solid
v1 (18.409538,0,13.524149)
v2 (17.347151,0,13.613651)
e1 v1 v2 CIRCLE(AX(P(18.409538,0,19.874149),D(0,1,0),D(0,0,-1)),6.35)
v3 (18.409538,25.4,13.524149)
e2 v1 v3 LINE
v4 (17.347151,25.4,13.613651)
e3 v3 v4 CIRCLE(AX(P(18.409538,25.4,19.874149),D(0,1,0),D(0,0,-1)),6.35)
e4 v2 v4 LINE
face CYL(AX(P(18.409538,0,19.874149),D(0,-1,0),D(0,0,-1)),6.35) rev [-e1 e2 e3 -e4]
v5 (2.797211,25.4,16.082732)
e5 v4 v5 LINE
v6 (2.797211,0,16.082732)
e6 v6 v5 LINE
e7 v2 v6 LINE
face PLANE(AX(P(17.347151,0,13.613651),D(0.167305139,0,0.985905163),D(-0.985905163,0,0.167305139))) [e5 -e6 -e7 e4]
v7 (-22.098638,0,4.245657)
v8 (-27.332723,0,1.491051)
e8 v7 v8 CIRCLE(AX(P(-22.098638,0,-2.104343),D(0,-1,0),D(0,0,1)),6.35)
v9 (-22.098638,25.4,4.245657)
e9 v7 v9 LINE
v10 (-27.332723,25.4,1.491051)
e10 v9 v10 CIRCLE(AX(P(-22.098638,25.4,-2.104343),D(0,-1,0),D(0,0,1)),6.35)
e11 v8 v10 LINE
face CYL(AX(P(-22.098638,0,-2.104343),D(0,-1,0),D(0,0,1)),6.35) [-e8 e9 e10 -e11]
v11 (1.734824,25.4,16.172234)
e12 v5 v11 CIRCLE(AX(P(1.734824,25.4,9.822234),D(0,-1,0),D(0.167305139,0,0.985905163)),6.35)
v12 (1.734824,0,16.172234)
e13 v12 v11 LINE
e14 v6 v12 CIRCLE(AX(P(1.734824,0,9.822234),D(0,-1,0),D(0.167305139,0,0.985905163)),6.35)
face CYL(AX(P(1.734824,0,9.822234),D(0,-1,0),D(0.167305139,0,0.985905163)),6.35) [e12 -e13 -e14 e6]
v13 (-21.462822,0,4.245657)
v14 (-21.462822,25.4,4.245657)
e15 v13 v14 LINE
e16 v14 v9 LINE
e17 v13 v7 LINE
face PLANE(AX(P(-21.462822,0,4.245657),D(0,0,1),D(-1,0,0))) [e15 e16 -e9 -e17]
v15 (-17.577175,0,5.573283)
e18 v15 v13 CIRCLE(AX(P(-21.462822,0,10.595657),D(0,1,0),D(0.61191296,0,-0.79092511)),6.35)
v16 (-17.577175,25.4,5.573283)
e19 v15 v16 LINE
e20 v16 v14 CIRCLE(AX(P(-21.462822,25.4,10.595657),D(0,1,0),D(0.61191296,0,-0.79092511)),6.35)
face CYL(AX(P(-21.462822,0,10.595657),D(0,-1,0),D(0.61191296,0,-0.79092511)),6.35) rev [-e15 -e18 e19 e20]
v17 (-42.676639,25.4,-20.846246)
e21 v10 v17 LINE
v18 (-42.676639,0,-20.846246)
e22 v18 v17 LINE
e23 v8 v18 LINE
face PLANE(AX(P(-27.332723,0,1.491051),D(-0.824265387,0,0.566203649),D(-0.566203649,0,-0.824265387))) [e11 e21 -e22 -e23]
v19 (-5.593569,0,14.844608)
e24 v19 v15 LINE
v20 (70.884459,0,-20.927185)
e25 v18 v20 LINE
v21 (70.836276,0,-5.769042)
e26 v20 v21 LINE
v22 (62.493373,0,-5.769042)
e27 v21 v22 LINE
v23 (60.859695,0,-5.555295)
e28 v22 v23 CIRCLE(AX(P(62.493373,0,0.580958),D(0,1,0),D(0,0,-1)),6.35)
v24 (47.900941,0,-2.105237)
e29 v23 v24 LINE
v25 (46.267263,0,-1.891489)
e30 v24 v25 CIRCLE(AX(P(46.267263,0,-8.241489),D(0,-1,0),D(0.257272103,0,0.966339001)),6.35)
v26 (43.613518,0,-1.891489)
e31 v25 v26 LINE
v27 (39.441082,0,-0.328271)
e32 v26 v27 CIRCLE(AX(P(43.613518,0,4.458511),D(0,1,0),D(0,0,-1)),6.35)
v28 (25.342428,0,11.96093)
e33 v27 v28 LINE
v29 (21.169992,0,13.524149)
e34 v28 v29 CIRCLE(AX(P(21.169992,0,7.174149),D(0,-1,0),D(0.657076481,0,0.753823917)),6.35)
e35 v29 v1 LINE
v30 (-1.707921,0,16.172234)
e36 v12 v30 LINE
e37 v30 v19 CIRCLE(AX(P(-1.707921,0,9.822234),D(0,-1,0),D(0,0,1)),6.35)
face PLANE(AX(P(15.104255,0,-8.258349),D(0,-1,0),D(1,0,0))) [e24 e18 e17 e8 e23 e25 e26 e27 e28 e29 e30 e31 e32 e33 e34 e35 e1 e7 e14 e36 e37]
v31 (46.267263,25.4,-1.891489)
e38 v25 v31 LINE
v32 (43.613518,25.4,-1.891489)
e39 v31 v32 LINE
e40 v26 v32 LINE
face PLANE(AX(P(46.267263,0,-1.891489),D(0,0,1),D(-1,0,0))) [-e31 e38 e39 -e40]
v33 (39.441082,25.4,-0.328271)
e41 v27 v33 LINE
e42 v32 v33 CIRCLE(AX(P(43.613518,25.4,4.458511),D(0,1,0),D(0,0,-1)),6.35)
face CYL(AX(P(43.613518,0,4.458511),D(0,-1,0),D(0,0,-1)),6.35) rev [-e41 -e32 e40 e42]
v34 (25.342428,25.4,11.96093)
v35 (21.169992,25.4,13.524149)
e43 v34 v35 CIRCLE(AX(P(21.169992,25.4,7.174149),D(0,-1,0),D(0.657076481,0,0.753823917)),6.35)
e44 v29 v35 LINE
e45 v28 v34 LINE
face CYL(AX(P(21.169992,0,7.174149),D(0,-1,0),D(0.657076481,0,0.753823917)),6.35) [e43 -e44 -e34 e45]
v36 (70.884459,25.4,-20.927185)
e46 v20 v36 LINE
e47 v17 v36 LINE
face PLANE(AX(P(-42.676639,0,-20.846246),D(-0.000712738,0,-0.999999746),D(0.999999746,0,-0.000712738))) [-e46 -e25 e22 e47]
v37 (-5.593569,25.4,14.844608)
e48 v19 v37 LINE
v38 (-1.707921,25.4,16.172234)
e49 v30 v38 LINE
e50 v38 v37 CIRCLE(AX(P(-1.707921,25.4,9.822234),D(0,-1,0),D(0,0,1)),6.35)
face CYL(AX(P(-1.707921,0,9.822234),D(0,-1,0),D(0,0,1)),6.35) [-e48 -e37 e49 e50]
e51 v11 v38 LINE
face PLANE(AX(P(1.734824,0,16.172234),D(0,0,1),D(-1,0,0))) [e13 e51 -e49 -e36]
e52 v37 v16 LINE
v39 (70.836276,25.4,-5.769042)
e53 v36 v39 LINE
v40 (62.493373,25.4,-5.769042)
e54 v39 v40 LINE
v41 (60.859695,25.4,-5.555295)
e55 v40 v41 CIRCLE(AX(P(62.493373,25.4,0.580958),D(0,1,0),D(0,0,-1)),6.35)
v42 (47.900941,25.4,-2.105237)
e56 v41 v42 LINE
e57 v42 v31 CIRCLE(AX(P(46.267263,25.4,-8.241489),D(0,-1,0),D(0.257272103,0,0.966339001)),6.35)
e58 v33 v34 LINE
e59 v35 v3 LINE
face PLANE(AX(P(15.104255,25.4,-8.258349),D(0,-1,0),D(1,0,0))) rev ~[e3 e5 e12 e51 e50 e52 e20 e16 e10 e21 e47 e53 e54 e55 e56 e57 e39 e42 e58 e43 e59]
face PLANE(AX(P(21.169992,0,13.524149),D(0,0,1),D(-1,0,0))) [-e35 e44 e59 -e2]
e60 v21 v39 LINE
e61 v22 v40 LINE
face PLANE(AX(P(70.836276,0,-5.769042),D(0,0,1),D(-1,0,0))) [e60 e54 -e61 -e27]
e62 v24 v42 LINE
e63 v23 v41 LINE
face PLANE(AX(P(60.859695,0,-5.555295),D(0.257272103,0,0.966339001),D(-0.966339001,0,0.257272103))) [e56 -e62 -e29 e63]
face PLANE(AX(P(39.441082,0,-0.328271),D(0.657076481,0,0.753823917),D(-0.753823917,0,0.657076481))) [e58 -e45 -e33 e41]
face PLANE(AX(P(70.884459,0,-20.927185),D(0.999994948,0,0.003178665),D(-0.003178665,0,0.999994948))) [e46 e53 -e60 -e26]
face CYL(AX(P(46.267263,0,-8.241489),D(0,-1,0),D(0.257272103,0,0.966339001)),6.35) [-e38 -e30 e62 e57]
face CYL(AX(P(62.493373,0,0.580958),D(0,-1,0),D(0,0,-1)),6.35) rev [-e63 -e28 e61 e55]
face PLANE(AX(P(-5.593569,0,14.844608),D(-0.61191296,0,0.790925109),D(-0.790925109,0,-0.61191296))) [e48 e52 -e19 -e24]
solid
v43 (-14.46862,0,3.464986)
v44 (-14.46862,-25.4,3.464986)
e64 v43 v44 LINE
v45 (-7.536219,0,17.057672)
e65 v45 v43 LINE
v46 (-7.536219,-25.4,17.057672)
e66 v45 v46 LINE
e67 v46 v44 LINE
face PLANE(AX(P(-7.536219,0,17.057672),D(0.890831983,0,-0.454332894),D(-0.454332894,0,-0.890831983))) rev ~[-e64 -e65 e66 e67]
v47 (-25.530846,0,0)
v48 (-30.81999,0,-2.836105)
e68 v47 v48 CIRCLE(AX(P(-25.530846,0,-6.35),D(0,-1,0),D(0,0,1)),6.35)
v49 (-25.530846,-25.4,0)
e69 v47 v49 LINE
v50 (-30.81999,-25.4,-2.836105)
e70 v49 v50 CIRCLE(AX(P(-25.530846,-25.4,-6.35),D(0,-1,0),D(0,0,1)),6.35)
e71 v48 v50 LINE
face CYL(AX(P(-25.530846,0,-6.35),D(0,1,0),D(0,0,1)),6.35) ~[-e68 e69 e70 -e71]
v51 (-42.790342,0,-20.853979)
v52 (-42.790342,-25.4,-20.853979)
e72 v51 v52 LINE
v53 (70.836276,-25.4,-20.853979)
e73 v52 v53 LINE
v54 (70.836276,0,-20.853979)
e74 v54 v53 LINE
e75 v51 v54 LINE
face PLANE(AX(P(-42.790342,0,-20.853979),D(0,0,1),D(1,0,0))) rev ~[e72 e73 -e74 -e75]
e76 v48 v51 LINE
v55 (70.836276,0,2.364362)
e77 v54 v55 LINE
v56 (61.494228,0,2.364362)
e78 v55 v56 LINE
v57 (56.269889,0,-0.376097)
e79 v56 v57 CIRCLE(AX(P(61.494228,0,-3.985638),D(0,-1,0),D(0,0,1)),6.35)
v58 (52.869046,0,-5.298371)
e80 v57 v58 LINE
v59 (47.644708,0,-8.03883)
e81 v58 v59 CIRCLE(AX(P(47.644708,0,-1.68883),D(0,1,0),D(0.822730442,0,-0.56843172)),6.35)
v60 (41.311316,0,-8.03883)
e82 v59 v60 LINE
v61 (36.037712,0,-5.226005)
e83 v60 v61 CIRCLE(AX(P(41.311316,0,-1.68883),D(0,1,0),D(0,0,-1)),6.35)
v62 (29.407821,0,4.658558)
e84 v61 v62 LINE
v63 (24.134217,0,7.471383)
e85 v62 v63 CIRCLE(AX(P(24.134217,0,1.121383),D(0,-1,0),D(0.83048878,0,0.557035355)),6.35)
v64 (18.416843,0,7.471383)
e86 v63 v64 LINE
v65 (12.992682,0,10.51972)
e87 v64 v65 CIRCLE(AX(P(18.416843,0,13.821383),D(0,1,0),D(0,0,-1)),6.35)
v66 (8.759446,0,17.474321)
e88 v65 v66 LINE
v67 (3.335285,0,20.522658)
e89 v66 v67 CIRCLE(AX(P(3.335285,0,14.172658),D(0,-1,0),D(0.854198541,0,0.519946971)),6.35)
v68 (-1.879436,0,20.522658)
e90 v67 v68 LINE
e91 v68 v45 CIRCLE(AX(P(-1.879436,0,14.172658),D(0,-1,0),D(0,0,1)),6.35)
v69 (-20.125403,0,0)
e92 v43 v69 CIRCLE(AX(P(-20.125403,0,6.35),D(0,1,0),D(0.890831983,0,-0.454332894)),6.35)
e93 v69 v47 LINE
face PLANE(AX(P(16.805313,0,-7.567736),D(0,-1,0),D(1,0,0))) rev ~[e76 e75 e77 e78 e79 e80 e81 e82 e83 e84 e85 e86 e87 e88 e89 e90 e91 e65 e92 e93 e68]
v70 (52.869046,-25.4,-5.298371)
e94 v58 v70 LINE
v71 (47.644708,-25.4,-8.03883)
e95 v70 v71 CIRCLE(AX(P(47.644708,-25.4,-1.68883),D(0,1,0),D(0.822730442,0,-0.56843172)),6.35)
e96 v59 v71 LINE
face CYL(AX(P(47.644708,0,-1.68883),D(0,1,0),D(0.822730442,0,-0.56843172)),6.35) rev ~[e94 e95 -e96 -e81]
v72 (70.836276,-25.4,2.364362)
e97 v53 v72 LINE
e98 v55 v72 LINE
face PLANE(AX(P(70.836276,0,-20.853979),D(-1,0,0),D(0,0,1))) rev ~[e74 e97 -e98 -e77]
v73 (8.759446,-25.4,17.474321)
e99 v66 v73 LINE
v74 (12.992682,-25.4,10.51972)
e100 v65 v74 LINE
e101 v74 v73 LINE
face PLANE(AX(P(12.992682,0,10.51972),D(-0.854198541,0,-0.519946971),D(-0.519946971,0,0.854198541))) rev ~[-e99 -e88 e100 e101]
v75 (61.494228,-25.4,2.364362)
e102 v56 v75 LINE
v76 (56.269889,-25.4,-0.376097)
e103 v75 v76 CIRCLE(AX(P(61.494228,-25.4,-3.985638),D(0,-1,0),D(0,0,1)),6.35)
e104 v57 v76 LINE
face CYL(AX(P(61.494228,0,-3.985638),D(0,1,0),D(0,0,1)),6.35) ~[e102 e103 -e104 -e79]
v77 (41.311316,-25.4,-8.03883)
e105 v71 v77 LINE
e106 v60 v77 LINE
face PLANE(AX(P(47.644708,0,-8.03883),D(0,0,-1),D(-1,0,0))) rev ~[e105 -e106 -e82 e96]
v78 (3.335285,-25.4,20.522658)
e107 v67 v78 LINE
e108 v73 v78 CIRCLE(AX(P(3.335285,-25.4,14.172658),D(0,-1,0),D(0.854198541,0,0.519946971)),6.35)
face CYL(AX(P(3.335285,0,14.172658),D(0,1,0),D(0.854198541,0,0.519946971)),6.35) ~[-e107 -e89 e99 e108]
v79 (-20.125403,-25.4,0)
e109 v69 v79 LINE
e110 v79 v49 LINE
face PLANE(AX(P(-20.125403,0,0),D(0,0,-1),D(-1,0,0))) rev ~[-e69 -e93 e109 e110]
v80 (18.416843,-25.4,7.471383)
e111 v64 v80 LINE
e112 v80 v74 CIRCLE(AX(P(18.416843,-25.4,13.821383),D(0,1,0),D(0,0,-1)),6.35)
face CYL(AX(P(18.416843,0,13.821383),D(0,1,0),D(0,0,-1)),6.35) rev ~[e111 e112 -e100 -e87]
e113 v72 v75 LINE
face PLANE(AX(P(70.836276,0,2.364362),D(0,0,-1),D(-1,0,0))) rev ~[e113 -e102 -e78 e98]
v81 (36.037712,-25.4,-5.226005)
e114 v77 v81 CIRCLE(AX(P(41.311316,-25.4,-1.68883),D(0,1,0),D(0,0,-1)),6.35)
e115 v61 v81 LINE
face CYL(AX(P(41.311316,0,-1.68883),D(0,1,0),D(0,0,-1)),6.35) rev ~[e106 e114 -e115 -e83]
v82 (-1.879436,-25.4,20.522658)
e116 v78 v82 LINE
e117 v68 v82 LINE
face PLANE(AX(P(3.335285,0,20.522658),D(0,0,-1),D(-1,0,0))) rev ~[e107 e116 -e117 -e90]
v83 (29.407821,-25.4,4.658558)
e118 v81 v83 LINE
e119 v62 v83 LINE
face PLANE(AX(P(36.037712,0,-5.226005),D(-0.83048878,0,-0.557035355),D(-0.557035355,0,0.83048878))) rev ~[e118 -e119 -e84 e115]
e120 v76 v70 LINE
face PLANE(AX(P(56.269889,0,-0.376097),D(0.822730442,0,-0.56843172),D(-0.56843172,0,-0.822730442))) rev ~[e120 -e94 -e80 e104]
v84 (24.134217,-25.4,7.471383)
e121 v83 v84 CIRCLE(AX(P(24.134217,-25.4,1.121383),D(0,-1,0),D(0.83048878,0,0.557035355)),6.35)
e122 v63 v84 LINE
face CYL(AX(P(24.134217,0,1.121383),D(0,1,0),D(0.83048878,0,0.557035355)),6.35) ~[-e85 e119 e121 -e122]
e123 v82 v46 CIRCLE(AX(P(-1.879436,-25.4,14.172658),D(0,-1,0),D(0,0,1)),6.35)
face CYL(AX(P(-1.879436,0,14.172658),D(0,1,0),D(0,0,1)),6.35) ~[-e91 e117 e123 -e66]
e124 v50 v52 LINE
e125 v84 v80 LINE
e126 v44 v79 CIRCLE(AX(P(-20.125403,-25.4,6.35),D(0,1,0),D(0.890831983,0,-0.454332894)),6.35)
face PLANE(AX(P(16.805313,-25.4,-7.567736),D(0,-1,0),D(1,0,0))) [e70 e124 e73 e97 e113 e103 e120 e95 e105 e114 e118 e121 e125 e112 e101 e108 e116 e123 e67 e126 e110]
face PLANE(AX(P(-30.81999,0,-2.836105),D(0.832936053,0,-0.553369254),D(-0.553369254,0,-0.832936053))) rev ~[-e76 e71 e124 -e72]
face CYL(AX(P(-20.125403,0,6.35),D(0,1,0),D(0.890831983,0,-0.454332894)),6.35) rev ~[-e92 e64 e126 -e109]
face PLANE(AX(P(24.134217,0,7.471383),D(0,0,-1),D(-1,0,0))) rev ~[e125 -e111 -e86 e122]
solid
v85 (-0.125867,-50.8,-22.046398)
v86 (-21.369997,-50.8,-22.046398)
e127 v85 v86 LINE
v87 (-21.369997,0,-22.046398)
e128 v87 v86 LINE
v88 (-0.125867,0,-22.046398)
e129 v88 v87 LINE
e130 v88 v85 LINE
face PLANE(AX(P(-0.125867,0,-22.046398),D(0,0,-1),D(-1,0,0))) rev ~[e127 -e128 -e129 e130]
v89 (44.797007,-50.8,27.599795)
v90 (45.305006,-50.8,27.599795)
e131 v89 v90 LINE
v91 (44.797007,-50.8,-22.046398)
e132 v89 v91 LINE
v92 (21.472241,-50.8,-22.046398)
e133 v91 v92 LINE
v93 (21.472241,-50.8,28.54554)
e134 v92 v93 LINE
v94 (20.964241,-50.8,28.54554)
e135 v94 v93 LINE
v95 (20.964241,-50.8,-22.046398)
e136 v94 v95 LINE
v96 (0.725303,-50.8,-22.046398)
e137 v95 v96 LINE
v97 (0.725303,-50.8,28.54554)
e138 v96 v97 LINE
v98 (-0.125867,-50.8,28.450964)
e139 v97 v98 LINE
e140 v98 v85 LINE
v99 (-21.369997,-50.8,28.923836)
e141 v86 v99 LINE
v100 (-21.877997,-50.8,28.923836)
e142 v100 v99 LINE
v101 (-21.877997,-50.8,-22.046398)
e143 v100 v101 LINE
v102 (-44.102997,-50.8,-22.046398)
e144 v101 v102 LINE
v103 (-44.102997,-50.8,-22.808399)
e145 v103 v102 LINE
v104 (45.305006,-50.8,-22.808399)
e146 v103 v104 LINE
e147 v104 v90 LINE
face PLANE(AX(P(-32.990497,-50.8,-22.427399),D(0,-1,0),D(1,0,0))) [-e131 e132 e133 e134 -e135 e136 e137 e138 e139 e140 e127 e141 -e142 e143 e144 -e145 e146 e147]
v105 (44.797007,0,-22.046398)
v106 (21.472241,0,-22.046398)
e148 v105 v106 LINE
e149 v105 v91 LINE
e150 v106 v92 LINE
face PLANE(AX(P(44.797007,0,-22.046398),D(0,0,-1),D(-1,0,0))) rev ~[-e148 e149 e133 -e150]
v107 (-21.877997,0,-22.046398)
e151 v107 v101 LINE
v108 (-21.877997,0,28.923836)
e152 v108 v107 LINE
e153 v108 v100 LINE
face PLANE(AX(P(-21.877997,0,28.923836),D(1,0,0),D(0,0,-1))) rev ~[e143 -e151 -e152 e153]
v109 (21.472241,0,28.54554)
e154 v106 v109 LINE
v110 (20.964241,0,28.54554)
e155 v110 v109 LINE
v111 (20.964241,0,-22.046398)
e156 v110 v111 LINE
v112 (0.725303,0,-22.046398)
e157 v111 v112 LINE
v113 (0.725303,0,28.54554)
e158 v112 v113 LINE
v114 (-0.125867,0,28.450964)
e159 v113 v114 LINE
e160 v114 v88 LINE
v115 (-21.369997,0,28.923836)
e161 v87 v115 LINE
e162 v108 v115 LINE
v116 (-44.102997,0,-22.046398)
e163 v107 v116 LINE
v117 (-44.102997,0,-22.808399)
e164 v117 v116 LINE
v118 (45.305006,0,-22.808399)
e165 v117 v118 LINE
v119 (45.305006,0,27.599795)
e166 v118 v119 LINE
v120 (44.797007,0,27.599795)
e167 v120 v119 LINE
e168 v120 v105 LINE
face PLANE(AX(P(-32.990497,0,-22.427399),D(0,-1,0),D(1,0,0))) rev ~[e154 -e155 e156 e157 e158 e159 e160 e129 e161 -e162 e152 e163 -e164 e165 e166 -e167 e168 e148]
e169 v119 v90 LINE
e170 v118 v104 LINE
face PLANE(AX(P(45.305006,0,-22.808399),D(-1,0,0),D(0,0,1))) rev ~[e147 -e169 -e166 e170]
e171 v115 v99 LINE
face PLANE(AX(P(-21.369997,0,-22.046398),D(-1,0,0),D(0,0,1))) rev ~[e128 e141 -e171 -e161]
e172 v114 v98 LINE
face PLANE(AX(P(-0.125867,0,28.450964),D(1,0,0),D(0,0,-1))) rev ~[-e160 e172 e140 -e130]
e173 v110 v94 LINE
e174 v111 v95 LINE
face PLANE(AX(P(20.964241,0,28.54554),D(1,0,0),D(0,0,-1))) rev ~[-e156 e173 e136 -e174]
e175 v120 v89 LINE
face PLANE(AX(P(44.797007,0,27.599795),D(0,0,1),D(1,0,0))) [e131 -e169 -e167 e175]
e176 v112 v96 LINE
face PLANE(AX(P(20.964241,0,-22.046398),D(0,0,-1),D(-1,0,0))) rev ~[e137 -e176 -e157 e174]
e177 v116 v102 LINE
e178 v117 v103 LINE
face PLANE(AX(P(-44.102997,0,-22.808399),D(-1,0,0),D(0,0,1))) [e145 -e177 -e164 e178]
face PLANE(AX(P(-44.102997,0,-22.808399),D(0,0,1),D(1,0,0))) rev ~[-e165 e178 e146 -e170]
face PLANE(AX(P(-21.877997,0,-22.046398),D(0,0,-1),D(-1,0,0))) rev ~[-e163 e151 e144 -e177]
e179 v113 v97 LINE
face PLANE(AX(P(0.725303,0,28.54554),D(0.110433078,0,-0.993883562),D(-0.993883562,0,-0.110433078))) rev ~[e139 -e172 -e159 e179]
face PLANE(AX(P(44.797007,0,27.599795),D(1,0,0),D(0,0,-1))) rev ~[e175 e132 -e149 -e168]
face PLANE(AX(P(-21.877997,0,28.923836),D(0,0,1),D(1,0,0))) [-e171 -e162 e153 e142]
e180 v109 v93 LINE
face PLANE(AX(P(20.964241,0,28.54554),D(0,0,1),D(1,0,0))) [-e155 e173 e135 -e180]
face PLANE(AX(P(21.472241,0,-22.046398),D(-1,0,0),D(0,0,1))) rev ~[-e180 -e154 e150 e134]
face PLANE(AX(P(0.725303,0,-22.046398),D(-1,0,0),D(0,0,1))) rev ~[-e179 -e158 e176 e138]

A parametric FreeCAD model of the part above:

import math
import FreeCAD as App
import Part
import Sketcher
Q = App.Units.Quantity

doc = App.newDocument("Part")
params = doc.addObject("Spreadsheet::Sheet", "Params")
for row, (alias, value) in enumerate([
    ("sketch1_radius", "0.25 in"),
    ("pad1_length", "1 in"),
    ("sketch2_radius", "0.25 in"),
    ("pad2_length", "1 in"),
    ("sketch3_width", "3.5200001 in"),
    ("sketch3_width2", "0.02 in"),
    ("sketch3_height", "0.03 in"),
    ("sketch3_width3", "0.875 in"),
    ("pad3_length", "2 in"),
], start=1):
    params.set(f"A{row}", alias)
    params.set(f"B{row}", "=" + value)
    params.setAlias(f"B{row}", alias)

body = doc.addObject("PartDesign::Body", "Body")

# Sketch on XZ plane
sketch1 = body.newObject("Sketcher::SketchObject", "Sketch")
sketch1.AttachmentSupport = (doc.getObject("XZ_Plane"), [""])
sketch1.MapMode = "FlatFace"
sketch1.addGeometry(Part.LineSegment(App.Vector(-31, -3, 0), App.Vector(-43, -21, 0)), False)
sketch1.addGeometry(Part.LineSegment(App.Vector(-43, -21, 0), App.Vector(71, -21, 0)), False)
sketch1.addGeometry(Part.LineSegment(App.Vector(71, -21, 0), App.Vector(71, 2, 0)), False)
sketch1.addGeometry(Part.LineSegment(App.Vector(71, 2, 0), App.Vector(61, 2, 0)), False)
sketch1.addGeometry(Part.ArcOfCircle(Part.Circle(App.Vector(61, -4, 0), App.Vector(0, 0, 1), 6), math.radians(90), math.radians(145)), False)
sketch1.addGeometry(Part.LineSegment(App.Vector(56, 0, 0), App.Vector(53, -5, 0)), False)
sketch1.addGeometry(Part.ArcOfCircle(Part.Circle(App.Vector(48, -2, 0), App.Vector(0, 0, 1), 6), math.radians(-90), math.radians(-35)), False)
sketch1.addGeometry(Part.LineSegment(App.Vector(48, -8, 0), App.Vector(41, -8, 0)), False)
sketch1.addGeometry(Part.ArcOfCircle(Part.Circle(App.Vector(41, -2, 0), App.Vector(0, 0, 1), 6), math.radians(-146), math.radians(-90)), False)
sketch1.addGeometry(Part.LineSegment(App.Vector(36, -5, 0), App.Vector(29, 5, 0)), False)
sketch1.addGeometry(Part.ArcOfCircle(Part.Circle(App.Vector(24, 1, 0), App.Vector(0, 0, 1), 6), math.radians(34), math.radians(90)), False)
sketch1.addGeometry(Part.LineSegment(App.Vector(24, 7, 0), App.Vector(18, 7, 0)), False)
sketch1.addGeometry(Part.ArcOfCircle(Part.Circle(App.Vector(18, 14, 0), App.Vector(0, 0, 1), 6), math.radians(-149), math.radians(-90)), False)
sketch1.addGeometry(Part.LineSegment(App.Vector(13, 11, 0), App.Vector(9, 17, 0)), False)
sketch1.addGeometry(Part.ArcOfCircle(Part.Circle(App.Vector(3, 14, 0), App.Vector(0, 0, 1), 6), math.radians(31), math.radians(90)), False)
sketch1.addGeometry(Part.LineSegment(App.Vector(3, 21, 0), App.Vector(-2, 21, 0)), False)
sketch1.addGeometry(Part.ArcOfCircle(Part.Circle(App.Vector(-2, 14, 0), App.Vector(0, 0, 1), 6), math.radians(90), math.radians(153)), False)
sketch1.addGeometry(Part.LineSegment(App.Vector(-8, 17, 0), App.Vector(-14, 3, 0)), False)
sketch1.addGeometry(Part.ArcOfCircle(Part.Circle(App.Vector(-20, 6, 0), App.Vector(0, 0, 1), 6), math.radians(-90), math.radians(-27)), False)
sketch1.addGeometry(Part.LineSegment(App.Vector(-20, 0, 0), App.Vector(-26, 0, 0)), False)
sketch1.addGeometry(Part.ArcOfCircle(Part.Circle(App.Vector(-26, -6, 0), App.Vector(0, 0, 1), 6), math.radians(90), math.radians(146)), False)
sketch1.addConstraint(Sketcher.Constraint("Coincident", 0, 2, 1, 1))
sketch1.addConstraint(Sketcher.Constraint("Coincident", 1, 2, 2, 1))
sketch1.addConstraint(Sketcher.Constraint("Coincident", 2, 2, 3, 1))
sketch1.addConstraint(Sketcher.Constraint("Tangent", 3, 2, 4, 1))
sketch1.addConstraint(Sketcher.Constraint("Tangent", 4, 2, 5, 1))
sketch1.addConstraint(Sketcher.Constraint("Tangent", 5, 2, 6, 2))
sketch1.addConstraint(Sketcher.Constraint("Tangent", 6, 1, 7, 1))
sketch1.addConstraint(Sketcher.Constraint("Tangent", 7, 2, 8, 2))
sketch1.addConstraint(Sketcher.Constraint("Tangent", 8, 1, 9, 1))
sketch1.addConstraint(Sketcher.Constraint("Tangent", 9, 2, 10, 1))
sketch1.addConstraint(Sketcher.Constraint("Tangent", 10, 2, 11, 1))
sketch1.addConstraint(Sketcher.Constraint("Tangent", 11, 2, 12, 2))
sketch1.addConstraint(Sketcher.Constraint("Tangent", 12, 1, 13, 1))
sketch1.addConstraint(Sketcher.Constraint("Tangent", 13, 2, 14, 1))
sketch1.addConstraint(Sketcher.Constraint("Tangent", 14, 2, 15, 1))
sketch1.addConstraint(Sketcher.Constraint("Tangent", 15, 2, 16, 1))
sketch1.addConstraint(Sketcher.Constraint("Tangent", 16, 2, 17, 1))
sketch1.addConstraint(Sketcher.Constraint("Tangent", 17, 2, 18, 2))
sketch1.addConstraint(Sketcher.Constraint("Tangent", 18, 1, 19, 1))
sketch1.addConstraint(Sketcher.Constraint("Tangent", 19, 2, 20, 1))
sketch1.addConstraint(Sketcher.Constraint("Tangent", 20, 2, 0, 1))
sketch1.addConstraint(Sketcher.Constraint("Horizontal", 1))
sketch1.addConstraint(Sketcher.Constraint("Vertical", 2))
sketch1.addConstraint(Sketcher.Constraint("Horizontal", 3))
sketch1.addConstraint(Sketcher.Constraint("Horizontal", 7))
sketch1.addConstraint(Sketcher.Constraint("Horizontal", 11))
sketch1.addConstraint(Sketcher.Constraint("Horizontal", 15))
sketch1.addConstraint(Sketcher.Constraint("Horizontal", 19))
sketch1.addConstraint(Sketcher.Constraint("Equal", 4, 6))
sketch1.addConstraint(Sketcher.Constraint("Equal", 6, 8))
sketch1.addConstraint(Sketcher.Constraint("Equal", 8, 10))
sketch1.addConstraint(Sketcher.Constraint("Equal", 10, 12))
sketch1.addConstraint(Sketcher.Constraint("Equal", 12, 14))
sketch1.addConstraint(Sketcher.Constraint("Equal", 14, 16))
sketch1.addConstraint(Sketcher.Constraint("Equal", 16, 18))
sketch1.addConstraint(Sketcher.Constraint("Equal", 18, 20))
sketch1.addConstraint(Sketcher.Constraint("PointOnObject", 18, 1, -1))
sketch1.addConstraint(Sketcher.Constraint("Radius", 4, Q("0.25 in")))
sketch1.addConstraint(Sketcher.Constraint("DistanceX", 8, 3, 1, 2, Q("1.1624 in")))
sketch1.addConstraint(Sketcher.Constraint("Distance", 9, Q("11.902102 mm")))
sketch1.addConstraint(Sketcher.Constraint("DistanceX", 1, 1, 1, 2, Q("113.626618 mm")))
sketch1.addConstraint(Sketcher.Constraint("DistanceX", 3, 2, 3, 1, Q("9.342048 mm")))
sketch1.addConstraint(Sketcher.Constraint("DistanceX", 15, 2, 15, 1, Q("5.214721 mm")))
sketch1.addConstraint(Sketcher.Constraint("DistanceY", 2, 1, 2, 2, Q("23.218341 mm")))
sketch1.addConstraint(Sketcher.Constraint("DistanceX", 10, 3, 8, 3, Q("17.177099 mm")))
sketch1.addConstraint(Sketcher.Constraint("DistanceY", 12, 1, 13, 2, Q("6.954601 mm")))
sketch1.addConstraint(Sketcher.Constraint("DistanceX", 17, 2, 16, 2, Q("6.932401 mm")))
sketch1.addConstraint(Sketcher.Constraint("Distance", 0, Q("21.631762 mm")))
sketch1.addConstraint(Sketcher.Constraint("Distance", 13, Q("8.141668 mm")))
sketch1.addConstraint(Sketcher.Constraint("DistanceX", 7, 2, 7, 1, Q("6.333392 mm")))
sketch1.addConstraint(Sketcher.Constraint("DistanceX", 11, 2, 11, 1, Q("5.717374 mm")))
sketch1.addConstraint(Sketcher.Constraint("DistanceX", 19, 2, 19, 1, Q("5.405444 mm")))
sketch1.addConstraint(Sketcher.Constraint("DistanceY", 4, 3, -1, 1, Q("3.985638 mm")))
sketch1.addConstraint(Sketcher.Constraint("DistanceX", -1, 1, 6, 3, Q("47.644708 mm")))
sketch1.setExpression("Constraints[37]", "Params.sketch1_radius")
pad1 = body.newObject("PartDesign::Pad", "Pad")
pad1.Profile = sketch1
pad1.setExpression("Length", "Params.pad1_length")
body2 = doc.addObject("PartDesign::Body", "Body001")

# Sketch on XZ plane
sketch2 = body2.newObject("Sketcher::SketchObject", "Sketch001")
sketch2.AttachmentSupport = (doc.getObject("XZ_Plane001"), [""])
sketch2.MapMode = "FlatFace"
sketch2.addGeometry(Part.LineSegment(App.Vector(-42.7, -20.8, 0), App.Vector(70.9, -20.9, 0)), False)
sketch2.addGeometry(Part.LineSegment(App.Vector(70.9, -20.9, 0), App.Vector(70.8, -5.8, 0)), False)
sketch2.addGeometry(Part.LineSegment(App.Vector(70.8, -5.8, 0), App.Vector(62.5, -5.8, 0)), False)
sketch2.addGeometry(Part.ArcOfCircle(Part.Circle(App.Vector(62.5, 0.6, 0), App.Vector(0, 0, 1), 6.3), math.radians(-104.91), math.radians(-90)), False)
sketch2.addGeometry(Part.LineSegment(App.Vector(60.9, -5.6, 0), App.Vector(47.9, -2.1, 0)), False)
sketch2.addGeometry(Part.ArcOfCircle(Part.Circle(App.Vector(46.3, -8.2, 0), App.Vector(0, 0, 1), 6.3), math.radians(75.09), math.radians(90)), False)
sketch2.addGeometry(Part.LineSegment(App.Vector(46.3, -1.9, 0), App.Vector(43.6, -1.9, 0)), False)
sketch2.addGeometry(Part.ArcOfCircle(Part.Circle(App.Vector(43.6, 4.5, 0), App.Vector(0, 0, 1), 6.3), math.radians(-131), math.radians(-90)), False)
sketch2.addGeometry(Part.LineSegment(App.Vector(39.4, -0.3, 0), App.Vector(25.3, 12, 0)), False)
sketch2.addGeometry(Part.ArcOfCircle(Part.Circle(App.Vector(21.2, 7.2, 0), App.Vector(0, 0, 1), 6.3), math.radians(49), math.radians(90)), False)
sketch2.addGeometry(Part.LineSegment(App.Vector(21.2, 13.5, 0), App.Vector(18.4, 13.5, 0)), False)
sketch2.addGeometry(Part.ArcOfCircle(Part.Circle(App.Vector(18.4, 19.9, 0), App.Vector(0, 0, 1), 6.4), math.radians(-99.63), math.radians(-90)), False)
sketch2.addGeometry(Part.LineSegment(App.Vector(17.3, 13.6, 0), App.Vector(2.8, 16.1, 0)), False)
sketch2.addGeometry(Part.ArcOfCircle(Part.Circle(App.Vector(1.7, 9.8, 0), App.Vector(0, 0, 1), 6.3), math.radians(80.37), math.radians(90)), False)
sketch2.addGeometry(Part.LineSegment(App.Vector(1.7, 16.2, 0), App.Vector(-1.7, 16.2, 0)), False)
sketch2.addGeometry(Part.ArcOfCircle(Part.Circle(App.Vector(-1.7, 9.8, 0), App.Vector(0, 0, 1), 6.3), math.radians(90), math.radians(128)), False)
sketch2.addGeometry(Part.LineSegment(App.Vector(-5.6, 14.8, 0), App.Vector(-17.6, 5.6, 0)), False)
sketch2.addGeometry(Part.ArcOfCircle(Part.Circle(App.Vector(-21.5, 10.6, 0), App.Vector(0, 0, 1), 6.4), math.radians(-90), math.radians(-52)), False)
sketch2.addGeometry(Part.LineSegment(App.Vector(-21.5, 4.2, 0), App.Vector(-22.1, 4.2, 0)), False)
sketch2.addGeometry(Part.ArcOfCircle(Part.Circle(App.Vector(-22.1, -2.1, 0), App.Vector(0, 0, 1), 6.3), math.radians(90), math.radians(146)), False)
sketch2.addGeometry(Part.LineSegment(App.Vector(-27.3, 1.5, 0), App.Vector(-42.7, -20.8, 0)), False)
sketch2.addConstraint(Sketcher.Constraint("Coincident", 0, 2, 1, 1))
sketch2.addConstraint(Sketcher.Constraint("Coincident", 1, 2, 2, 1))
sketch2.addConstraint(Sketcher.Constraint("Tangent", 2, 2, 3, 2))
sketch2.addConstraint(Sketcher.Constraint("Tangent", 3, 1, 4, 1))
sketch2.addConstraint(Sketcher.Constraint("Tangent", 4, 2, 5, 1))
sketch2.addConstraint(Sketcher.Constraint("Tangent", 5, 2, 6, 1))
sketch2.addConstraint(Sketcher.Constraint("Tangent", 6, 2, 7, 2))
sketch2.addConstraint(Sketcher.Constraint("Tangent", 7, 1, 8, 1))
sketch2.addConstraint(Sketcher.Constraint("Tangent", 8, 2, 9, 1))
sketch2.addConstraint(Sketcher.Constraint("Tangent", 9, 2, 10, 1))
sketch2.addConstraint(Sketcher.Constraint("Tangent", 10, 2, 11, 2))
sketch2.addConstraint(Sketcher.Constraint("Tangent", 11, 1, 12, 1))
sketch2.addConstraint(Sketcher.Constraint("Tangent", 12, 2, 13, 1))
sketch2.addConstraint(Sketcher.Constraint("Tangent", 13, 2, 14, 1))
sketch2.addConstraint(Sketcher.Constraint("Tangent", 14, 2, 15, 1))
sketch2.addConstraint(Sketcher.Constraint("Tangent", 15, 2, 16, 1))
sketch2.addConstraint(Sketcher.Constraint("Tangent", 16, 2, 17, 2))
sketch2.addConstraint(Sketcher.Constraint("Tangent", 17, 1, 18, 1))
sketch2.addConstraint(Sketcher.Constraint("Tangent", 18, 2, 19, 1))
sketch2.addConstraint(Sketcher.Constraint("Tangent", 19, 2, 20, 1))
sketch2.addConstraint(Sketcher.Constraint("Coincident", 20, 2, 0, 1))
sketch2.addConstraint(Sketcher.Constraint("Horizontal", 2))
sketch2.addConstraint(Sketcher.Constraint("Horizontal", 6))
sketch2.addConstraint(Sketcher.Constraint("Horizontal", 10))
sketch2.addConstraint(Sketcher.Constraint("Horizontal", 14))
sketch2.addConstraint(Sketcher.Constraint("Horizontal", 18))
sketch2.addConstraint(Sketcher.Constraint("Equal", 3, 5))
sketch2.addConstraint(Sketcher.Constraint("Equal", 5, 7))
sketch2.addConstraint(Sketcher.Constraint("Equal", 7, 9))
sketch2.addConstraint(Sketcher.Constraint("Equal", 9, 11))
sketch2.addConstraint(Sketcher.Constraint("Equal", 11, 13))
sketch2.addConstraint(Sketcher.Constraint("Equal", 13, 15))
sketch2.addConstraint(Sketcher.Constraint("Equal", 15, 17))
sketch2.addConstraint(Sketcher.Constraint("Equal", 17, 19))
sketch2.addConstraint(Sketcher.Constraint("Radius", 3, Q("0.25 in")))
sketch2.addConstraint(Sketcher.Constraint("DistanceX", -1, 1, 13, 3, Q("0.0683001 in")))
sketch2.addConstraint(Sketcher.Constraint("DistanceX", 17, 3, 15, 3, Q("19.754901 mm")))
sketch2.addConstraint(Sketcher.Constraint("DistanceY", 7, 1, 8, 2, Q("12.289202 mm")))
sketch2.addConstraint(Sketcher.Constraint("DistanceX", 19, 2, 17, 1, Q("5.869901 mm")))
sketch2.addConstraint(Sketcher.Constraint("DistanceX", 20, 2, 19, 3, Q("20.578001 mm")))
sketch2.addConstraint(Sketcher.Constraint("Distance", 1, Q("15.158219 mm")))
sketch2.addConstraint(Sketcher.Constraint("Distance", 8, Q("18.702848 mm")))
sketch2.addConstraint(Sketcher.Constraint("Distance", 12, Q("14.75795 mm")))
sketch2.addConstraint(Sketcher.Constraint("Distance", 16, Q("15.151379 mm")))
sketch2.addConstraint(Sketcher.Constraint("Distance", 20, Q("27.099641 mm")))
sketch2.addConstraint(Sketcher.Constraint("DistanceX", 2, 2, 2, 1, Q("8.342903 mm")))
sketch2.addConstraint(Sketcher.Constraint("DistanceX", 6, 2, 6, 1, Q("2.653746 mm")))
sketch2.addConstraint(Sketcher.Constraint("DistanceX", 10, 2, 10, 1, Q("2.760454 mm")))
sketch2.addConstraint(Sketcher.Constraint("DistanceX", 14, 2, 14, 1, Q("3.442745 mm")))
sketch2.addConstraint(Sketcher.Constraint("DistanceY", 5, 3, -1, 1, Q("8.241489 mm")))
sketch2.addConstraint(Sketcher.Constraint("DistanceX", -1, 1, 11, 3, Q("18.409538 mm")))
sketch2.addConstraint(Sketcher.Constraint("DistanceX", -1, 1, 0, 2, Q("70.884459 mm")))
sketch2.addConstraint(Sketcher.Constraint("DistanceX", -1, 1, 4, 2, Q("47.900941 mm")))
sketch2.addConstraint(Sketcher.Constraint("DistanceX", 5, 3, 3, 3, Q("16.22611 mm")))
sketch2.setExpression("Constraints[34]", "Params.sketch2_radius")
pad2 = body2.newObject("PartDesign::Pad", "Pad001")
pad2.Profile = sketch2
pad2.setExpression("Length", "Params.pad2_length")
pad2.Reversed = True
body3 = doc.addObject("PartDesign::Body", "Body002")

# Sketch on XZ plane
sketch3 = body3.newObject("Sketcher::SketchObject", "Sketch002")
sketch3.AttachmentSupport = (doc.getObject("XZ_Plane002"), [""])
sketch3.MapMode = "FlatFace"
sketch3.addGeometry(Part.LineSegment(App.Vector(-44.1, -22, 0), App.Vector(-44.1, -22.8, 0)), False)
sketch3.addGeometry(Part.LineSegment(App.Vector(-44.1, -22.8, 0), App.Vector(45.3, -22.8, 0)), False)
sketch3.addGeometry(Part.LineSegment(App.Vector(45.3, -22.8, 0), App.Vector(45.3, 27.6, 0)), False)
sketch3.addGeometry(Part.LineSegment(App.Vector(45.3, 27.6, 0), App.Vector(44.8, 27.6, 0)), False)
sketch3.addGeometry(Part.LineSegment(App.Vector(44.8, 27.6, 0), App.Vector(44.8, -22, 0)), False)
sketch3.addGeometry(Part.LineSegment(App.Vector(44.8, -22, 0), App.Vector(21.5, -22, 0)), False)
sketch3.addGeometry(Part.LineSegment(App.Vector(21.5, -22, 0), App.Vector(21.5, 28.5, 0)), False)
sketch3.addGeometry(Part.LineSegment(App.Vector(21.5, 28.5, 0), App.Vector(21, 28.5, 0)), False)
sketch3.addGeometry(Part.LineSegment(App.Vector(21, 28.5, 0), App.Vector(21, -22, 0)), False)
sketch3.addGeometry(Part.LineSegment(App.Vector(21, -22, 0), App.Vector(0.7, -22, 0)), False)
sketch3.addGeometry(Part.LineSegment(App.Vector(0.7, -22, 0), App.Vector(0.7, 28.5, 0)), False)
sketch3.addGeometry(Part.LineSegment(App.Vector(0.7, 28.5, 0), App.Vector(-0.1, 28.5, 0)), False)
sketch3.addGeometry(Part.LineSegment(App.Vector(-0.1, 28.5, 0), App.Vector(-0.1, -22, 0)), False)
sketch3.addGeometry(Part.LineSegment(App.Vector(-0.1, -22, 0), App.Vector(-21.4, -22, 0)), False)
sketch3.addGeometry(Part.LineSegment(App.Vector(-21.4, -22, 0), App.Vector(-21.4, 28.9, 0)), False)
sketch3.addGeometry(Part.LineSegment(App.Vector(-21.4, 28.9, 0), App.Vector(-21.9, 28.9, 0)), False)
sketch3.addGeometry(Part.LineSegment(App.Vector(-21.9, 28.9, 0), App.Vector(-21.9, -22, 0)), False)
sketch3.addGeometry(Part.LineSegment(App.Vector(-21.9, -22, 0), App.Vector(-44.1, -22, 0)), False)
sketch3.addConstraint(Sketcher.Constraint("Coincident", 0, 2, 1, 1))
sketch3.addConstraint(Sketcher.Constraint("Coincident", 1, 2, 2, 1))
sketch3.addConstraint(Sketcher.Constraint("Coincident", 2, 2, 3, 1))
sketch3.addConstraint(Sketcher.Constraint("Coincident", 3, 2, 4, 1))
sketch3.addConstraint(Sketcher.Constraint("Coincident", 4, 2, 5, 1))
sketch3.addConstraint(Sketcher.Constraint("Coincident", 5, 2, 6, 1))
sketch3.addConstraint(Sketcher.Constraint("Coincident", 6, 2, 7, 1))
sketch3.addConstraint(Sketcher.Constraint("Coincident", 7, 2, 8, 1))
sketch3.addConstraint(Sketcher.Constraint("Coincident", 8, 2, 9, 1))
sketch3.addConstraint(Sketcher.Constraint("Coincident", 9, 2, 10, 1))
sketch3.addConstraint(Sketcher.Constraint("Coincident", 10, 2, 11, 1))
sketch3.addConstraint(Sketcher.Constraint("Coincident", 11, 2, 12, 1))
sketch3.addConstraint(Sketcher.Constraint("Coincident", 12, 2, 13, 1))
sketch3.addConstraint(Sketcher.Constraint("Coincident", 13, 2, 14, 1))
sketch3.addConstraint(Sketcher.Constraint("Coincident", 14, 2, 15, 1))
sketch3.addConstraint(Sketcher.Constraint("Coincident", 15, 2, 16, 1))
sketch3.addConstraint(Sketcher.Constraint("Coincident", 16, 2, 17, 1))
sketch3.addConstraint(Sketcher.Constraint("Coincident", 17, 2, 0, 1))
sketch3.addConstraint(Sketcher.Constraint("Vertical", 0))
sketch3.addConstraint(Sketcher.Constraint("Horizontal", 1))
sketch3.addConstraint(Sketcher.Constraint("Vertical", 2))
sketch3.addConstraint(Sketcher.Constraint("Horizontal", 3))
sketch3.addConstraint(Sketcher.Constraint("Vertical", 4))
sketch3.addConstraint(Sketcher.Constraint("Horizontal", 5))
sketch3.addConstraint(Sketcher.Constraint("Vertical", 6))
sketch3.addConstraint(Sketcher.Constraint("Horizontal", 7))
sketch3.addConstraint(Sketcher.Constraint("Vertical", 8))
sketch3.addConstraint(Sketcher.Constraint("Horizontal", 9))
sketch3.addConstraint(Sketcher.Constraint("Vertical", 10))
sketch3.addConstraint(Sketcher.Constraint("Vertical", 12))
sketch3.addConstraint(Sketcher.Constraint("Horizontal", 13))
sketch3.addConstraint(Sketcher.Constraint("Vertical", 14))
sketch3.addConstraint(Sketcher.Constraint("Horizontal", 15))
sketch3.addConstraint(Sketcher.Constraint("Vertical", 16))
sketch3.addConstraint(Sketcher.Constraint("Horizontal", 17))
sketch3.addConstraint(Sketcher.Constraint("Horizontal", 5, 2, 8, 2))
sketch3.addConstraint(Sketcher.Constraint("Horizontal", 7, 2, 10, 2))
sketch3.addConstraint(Sketcher.Constraint("Horizontal", 9, 2, 12, 2))
sketch3.addConstraint(Sketcher.Constraint("Horizontal", 13, 2, 16, 2))
sketch3.addConstraint(Sketcher.Constraint("Equal", 3, 7))
sketch3.addConstraint(Sketcher.Constraint("Equal", 7, 15))
sketch3.addConstraint(Sketcher.Constraint("DistanceX", 1, 1, 1, 2, Q("3.5200001 in")))
sketch3.addConstraint(Sketcher.Constraint("DistanceX", 3, 2, 3, 1, Q("0.02 in")))
sketch3.addConstraint(Sketcher.Constraint("DistanceY", 0, 2, 0, 1, Q("0.03 in")))
sketch3.addConstraint(Sketcher.Constraint("DistanceX", 17, 2, 17, 1, Q("0.875 in")))
sketch3.addConstraint(Sketcher.Constraint("DistanceX", 13, 2, 13, 1, Q("21.24413 mm")))
sketch3.addConstraint(Sketcher.Constraint("DistanceY", 6, 1, 6, 2, Q("50.591938 mm")))
sketch3.addConstraint(Sketcher.Constraint("DistanceY", 0, 2, -1, 1, Q("22.808399 mm")))
sketch3.addConstraint(Sketcher.Constraint("DistanceX", 0, 2, 9, 2, Q("44.828299 mm")))
sketch3.addConstraint(Sketcher.Constraint("Distance", 11, Q("0.856408 mm")))
sketch3.addConstraint(Sketcher.Constraint("DistanceX", 5, 2, 5, 1, Q("23.324766 mm")))
sketch3.addConstraint(Sketcher.Constraint("DistanceY", 2, 1, 2, 2, Q("50.408194 mm")))
sketch3.addConstraint(Sketcher.Constraint("DistanceY", 14, 1, 14, 2, Q("50.970234 mm")))
sketch3.addConstraint(Sketcher.Constraint("DistanceX", -1, 1, 5, 2, Q("21.472241 mm")))
sketch3.setExpression("Constraints[41]", "Params.sketch3_width")
sketch3.setExpression("Constraints[42]", "Params.sketch3_width2")
sketch3.setExpression("Constraints[43]", "Params.sketch3_height")
sketch3.setExpression("Constraints[44]", "Params.sketch3_width3")
pad3 = body3.newObject("PartDesign::Pad", "Pad002")
pad3.Profile = sketch3
pad3.setExpression("Length", "Params.pad3_length")

doc.recompute()
